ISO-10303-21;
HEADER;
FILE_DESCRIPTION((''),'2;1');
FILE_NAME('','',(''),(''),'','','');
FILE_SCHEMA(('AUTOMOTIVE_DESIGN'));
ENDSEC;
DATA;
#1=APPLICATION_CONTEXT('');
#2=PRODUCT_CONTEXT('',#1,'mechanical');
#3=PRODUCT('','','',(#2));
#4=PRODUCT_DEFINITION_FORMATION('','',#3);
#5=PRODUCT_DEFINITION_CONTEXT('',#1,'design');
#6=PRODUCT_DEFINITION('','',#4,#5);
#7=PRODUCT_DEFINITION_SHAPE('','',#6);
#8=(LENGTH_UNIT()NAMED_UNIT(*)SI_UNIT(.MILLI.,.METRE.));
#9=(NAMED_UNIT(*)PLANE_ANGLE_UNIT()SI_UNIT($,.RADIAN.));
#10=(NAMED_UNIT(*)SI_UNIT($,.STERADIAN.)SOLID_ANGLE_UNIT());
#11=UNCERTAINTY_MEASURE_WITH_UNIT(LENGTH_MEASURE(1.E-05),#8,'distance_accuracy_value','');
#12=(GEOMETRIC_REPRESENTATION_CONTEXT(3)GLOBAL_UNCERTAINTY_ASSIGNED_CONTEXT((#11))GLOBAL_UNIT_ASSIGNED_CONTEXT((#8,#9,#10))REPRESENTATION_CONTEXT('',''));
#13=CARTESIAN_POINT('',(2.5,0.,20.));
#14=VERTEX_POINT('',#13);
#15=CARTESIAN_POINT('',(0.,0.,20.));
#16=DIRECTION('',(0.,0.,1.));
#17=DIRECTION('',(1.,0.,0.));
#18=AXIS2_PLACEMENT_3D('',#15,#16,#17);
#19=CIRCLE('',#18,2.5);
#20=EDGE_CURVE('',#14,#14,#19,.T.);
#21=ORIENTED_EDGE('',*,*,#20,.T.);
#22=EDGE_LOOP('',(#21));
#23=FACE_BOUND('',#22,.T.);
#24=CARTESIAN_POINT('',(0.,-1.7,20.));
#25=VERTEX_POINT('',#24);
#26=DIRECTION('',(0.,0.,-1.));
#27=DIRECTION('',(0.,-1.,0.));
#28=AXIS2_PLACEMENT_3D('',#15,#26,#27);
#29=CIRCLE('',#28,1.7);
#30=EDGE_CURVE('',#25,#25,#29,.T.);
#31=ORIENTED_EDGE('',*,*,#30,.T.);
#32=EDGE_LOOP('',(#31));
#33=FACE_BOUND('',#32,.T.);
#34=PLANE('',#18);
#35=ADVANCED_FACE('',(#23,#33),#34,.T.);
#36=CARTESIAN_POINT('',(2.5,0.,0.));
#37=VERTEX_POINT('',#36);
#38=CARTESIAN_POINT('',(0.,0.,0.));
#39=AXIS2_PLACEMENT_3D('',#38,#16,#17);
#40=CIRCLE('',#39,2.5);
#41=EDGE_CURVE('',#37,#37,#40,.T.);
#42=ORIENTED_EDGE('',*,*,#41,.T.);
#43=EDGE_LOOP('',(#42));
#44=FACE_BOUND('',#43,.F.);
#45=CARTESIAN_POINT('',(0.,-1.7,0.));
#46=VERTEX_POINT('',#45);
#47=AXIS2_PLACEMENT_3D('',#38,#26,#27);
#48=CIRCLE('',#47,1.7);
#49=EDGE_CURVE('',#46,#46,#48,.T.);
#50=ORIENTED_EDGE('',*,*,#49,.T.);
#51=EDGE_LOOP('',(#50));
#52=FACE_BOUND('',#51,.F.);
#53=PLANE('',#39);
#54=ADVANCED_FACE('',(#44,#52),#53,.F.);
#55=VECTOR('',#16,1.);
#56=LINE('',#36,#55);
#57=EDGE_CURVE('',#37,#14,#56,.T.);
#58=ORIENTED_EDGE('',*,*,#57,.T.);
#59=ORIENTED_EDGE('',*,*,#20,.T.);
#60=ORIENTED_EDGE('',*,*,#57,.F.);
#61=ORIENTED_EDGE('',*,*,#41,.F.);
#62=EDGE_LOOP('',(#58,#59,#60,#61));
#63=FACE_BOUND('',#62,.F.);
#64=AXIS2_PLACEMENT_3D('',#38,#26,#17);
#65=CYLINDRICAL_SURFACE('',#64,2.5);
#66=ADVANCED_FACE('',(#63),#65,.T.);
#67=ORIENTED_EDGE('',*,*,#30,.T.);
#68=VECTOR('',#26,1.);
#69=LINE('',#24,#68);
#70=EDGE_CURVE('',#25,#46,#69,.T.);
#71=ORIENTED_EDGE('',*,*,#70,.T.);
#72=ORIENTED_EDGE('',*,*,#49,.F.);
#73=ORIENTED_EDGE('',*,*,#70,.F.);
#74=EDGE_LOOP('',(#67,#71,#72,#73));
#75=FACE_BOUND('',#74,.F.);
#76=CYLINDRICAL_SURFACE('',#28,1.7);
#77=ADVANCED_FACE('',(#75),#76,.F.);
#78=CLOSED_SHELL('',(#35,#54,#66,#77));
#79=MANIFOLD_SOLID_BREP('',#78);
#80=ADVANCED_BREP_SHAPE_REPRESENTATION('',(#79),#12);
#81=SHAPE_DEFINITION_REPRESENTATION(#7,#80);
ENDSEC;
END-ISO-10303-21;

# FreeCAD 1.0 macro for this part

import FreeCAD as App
import Part
import Sketcher
Q = App.Units.Quantity

doc = App.newDocument("Part")
params = doc.addObject("Spreadsheet::Sheet", "Params")
for row, (alias, value) in enumerate([
    ("sketch1_diameter", "5 mm"),
    ("pad1_length", "20 mm"),
    ("sketch2_diameter", "3.4 mm"),
    ("hole_diameter", "3.4 mm"),
], start=1):
    params.set(f"A{row}", alias)
    params.set(f"B{row}", "=" + value)
    params.setAlias(f"B{row}", alias)

body = doc.addObject("PartDesign::Body", "Body")

# Sketch on XY plane
sketch1 = body.newObject("Sketcher::SketchObject", "Sketch")
sketch1.AttachmentSupport = (doc.getObject("XY_Plane"), [""])
sketch1.MapMode = "FlatFace"
sketch1.addGeometry(Part.Circle(App.Vector(0, 0, 0), App.Vector(0, 0, 1), 2.5), False)
sketch1.addConstraint([
    Sketcher.Constraint("Coincident", 0, 3, -1, 1),
    Sketcher.Constraint("Diameter", 0, Q("5 mm")),
])
sketch1.setExpression("Constraints[1]", "Params.sketch1_diameter")
pad1 = body.newObject("PartDesign::Pad", "Pad")
pad1.Profile = sketch1
pad1.setExpression("Length", "Params.pad1_length")

# Sketch on XY plane
sketch2 = body.newObject("Sketcher::SketchObject", "Sketch001")
sketch2.AttachmentSupport = (doc.getObject("XY_Plane"), [""])
sketch2.MapMode = "FlatFace"
sketch2.AttachmentOffset = App.Placement(App.Vector(0, 0, 20), App.Rotation())
sketch2.addGeometry(Part.Circle(App.Vector(0, 0, 0), App.Vector(0, 0, 1), 1.7), False)
sketch2.addConstraint([
    Sketcher.Constraint("Coincident", 0, 3, -1, 1),
    Sketcher.Constraint("Diameter", 0, Q("3.4 mm")),
])
sketch2.setExpression("Constraints[1]", "Params.sketch2_diameter")
doc.recompute()
hole = body.newObject("PartDesign::Hole", "Hole")
hole.Profile = sketch2
hole.ThreadType = "None"
hole.setExpression("Diameter", "Params.hole_diameter")
hole.DepthType = "ThroughAll"

doc.recompute()
